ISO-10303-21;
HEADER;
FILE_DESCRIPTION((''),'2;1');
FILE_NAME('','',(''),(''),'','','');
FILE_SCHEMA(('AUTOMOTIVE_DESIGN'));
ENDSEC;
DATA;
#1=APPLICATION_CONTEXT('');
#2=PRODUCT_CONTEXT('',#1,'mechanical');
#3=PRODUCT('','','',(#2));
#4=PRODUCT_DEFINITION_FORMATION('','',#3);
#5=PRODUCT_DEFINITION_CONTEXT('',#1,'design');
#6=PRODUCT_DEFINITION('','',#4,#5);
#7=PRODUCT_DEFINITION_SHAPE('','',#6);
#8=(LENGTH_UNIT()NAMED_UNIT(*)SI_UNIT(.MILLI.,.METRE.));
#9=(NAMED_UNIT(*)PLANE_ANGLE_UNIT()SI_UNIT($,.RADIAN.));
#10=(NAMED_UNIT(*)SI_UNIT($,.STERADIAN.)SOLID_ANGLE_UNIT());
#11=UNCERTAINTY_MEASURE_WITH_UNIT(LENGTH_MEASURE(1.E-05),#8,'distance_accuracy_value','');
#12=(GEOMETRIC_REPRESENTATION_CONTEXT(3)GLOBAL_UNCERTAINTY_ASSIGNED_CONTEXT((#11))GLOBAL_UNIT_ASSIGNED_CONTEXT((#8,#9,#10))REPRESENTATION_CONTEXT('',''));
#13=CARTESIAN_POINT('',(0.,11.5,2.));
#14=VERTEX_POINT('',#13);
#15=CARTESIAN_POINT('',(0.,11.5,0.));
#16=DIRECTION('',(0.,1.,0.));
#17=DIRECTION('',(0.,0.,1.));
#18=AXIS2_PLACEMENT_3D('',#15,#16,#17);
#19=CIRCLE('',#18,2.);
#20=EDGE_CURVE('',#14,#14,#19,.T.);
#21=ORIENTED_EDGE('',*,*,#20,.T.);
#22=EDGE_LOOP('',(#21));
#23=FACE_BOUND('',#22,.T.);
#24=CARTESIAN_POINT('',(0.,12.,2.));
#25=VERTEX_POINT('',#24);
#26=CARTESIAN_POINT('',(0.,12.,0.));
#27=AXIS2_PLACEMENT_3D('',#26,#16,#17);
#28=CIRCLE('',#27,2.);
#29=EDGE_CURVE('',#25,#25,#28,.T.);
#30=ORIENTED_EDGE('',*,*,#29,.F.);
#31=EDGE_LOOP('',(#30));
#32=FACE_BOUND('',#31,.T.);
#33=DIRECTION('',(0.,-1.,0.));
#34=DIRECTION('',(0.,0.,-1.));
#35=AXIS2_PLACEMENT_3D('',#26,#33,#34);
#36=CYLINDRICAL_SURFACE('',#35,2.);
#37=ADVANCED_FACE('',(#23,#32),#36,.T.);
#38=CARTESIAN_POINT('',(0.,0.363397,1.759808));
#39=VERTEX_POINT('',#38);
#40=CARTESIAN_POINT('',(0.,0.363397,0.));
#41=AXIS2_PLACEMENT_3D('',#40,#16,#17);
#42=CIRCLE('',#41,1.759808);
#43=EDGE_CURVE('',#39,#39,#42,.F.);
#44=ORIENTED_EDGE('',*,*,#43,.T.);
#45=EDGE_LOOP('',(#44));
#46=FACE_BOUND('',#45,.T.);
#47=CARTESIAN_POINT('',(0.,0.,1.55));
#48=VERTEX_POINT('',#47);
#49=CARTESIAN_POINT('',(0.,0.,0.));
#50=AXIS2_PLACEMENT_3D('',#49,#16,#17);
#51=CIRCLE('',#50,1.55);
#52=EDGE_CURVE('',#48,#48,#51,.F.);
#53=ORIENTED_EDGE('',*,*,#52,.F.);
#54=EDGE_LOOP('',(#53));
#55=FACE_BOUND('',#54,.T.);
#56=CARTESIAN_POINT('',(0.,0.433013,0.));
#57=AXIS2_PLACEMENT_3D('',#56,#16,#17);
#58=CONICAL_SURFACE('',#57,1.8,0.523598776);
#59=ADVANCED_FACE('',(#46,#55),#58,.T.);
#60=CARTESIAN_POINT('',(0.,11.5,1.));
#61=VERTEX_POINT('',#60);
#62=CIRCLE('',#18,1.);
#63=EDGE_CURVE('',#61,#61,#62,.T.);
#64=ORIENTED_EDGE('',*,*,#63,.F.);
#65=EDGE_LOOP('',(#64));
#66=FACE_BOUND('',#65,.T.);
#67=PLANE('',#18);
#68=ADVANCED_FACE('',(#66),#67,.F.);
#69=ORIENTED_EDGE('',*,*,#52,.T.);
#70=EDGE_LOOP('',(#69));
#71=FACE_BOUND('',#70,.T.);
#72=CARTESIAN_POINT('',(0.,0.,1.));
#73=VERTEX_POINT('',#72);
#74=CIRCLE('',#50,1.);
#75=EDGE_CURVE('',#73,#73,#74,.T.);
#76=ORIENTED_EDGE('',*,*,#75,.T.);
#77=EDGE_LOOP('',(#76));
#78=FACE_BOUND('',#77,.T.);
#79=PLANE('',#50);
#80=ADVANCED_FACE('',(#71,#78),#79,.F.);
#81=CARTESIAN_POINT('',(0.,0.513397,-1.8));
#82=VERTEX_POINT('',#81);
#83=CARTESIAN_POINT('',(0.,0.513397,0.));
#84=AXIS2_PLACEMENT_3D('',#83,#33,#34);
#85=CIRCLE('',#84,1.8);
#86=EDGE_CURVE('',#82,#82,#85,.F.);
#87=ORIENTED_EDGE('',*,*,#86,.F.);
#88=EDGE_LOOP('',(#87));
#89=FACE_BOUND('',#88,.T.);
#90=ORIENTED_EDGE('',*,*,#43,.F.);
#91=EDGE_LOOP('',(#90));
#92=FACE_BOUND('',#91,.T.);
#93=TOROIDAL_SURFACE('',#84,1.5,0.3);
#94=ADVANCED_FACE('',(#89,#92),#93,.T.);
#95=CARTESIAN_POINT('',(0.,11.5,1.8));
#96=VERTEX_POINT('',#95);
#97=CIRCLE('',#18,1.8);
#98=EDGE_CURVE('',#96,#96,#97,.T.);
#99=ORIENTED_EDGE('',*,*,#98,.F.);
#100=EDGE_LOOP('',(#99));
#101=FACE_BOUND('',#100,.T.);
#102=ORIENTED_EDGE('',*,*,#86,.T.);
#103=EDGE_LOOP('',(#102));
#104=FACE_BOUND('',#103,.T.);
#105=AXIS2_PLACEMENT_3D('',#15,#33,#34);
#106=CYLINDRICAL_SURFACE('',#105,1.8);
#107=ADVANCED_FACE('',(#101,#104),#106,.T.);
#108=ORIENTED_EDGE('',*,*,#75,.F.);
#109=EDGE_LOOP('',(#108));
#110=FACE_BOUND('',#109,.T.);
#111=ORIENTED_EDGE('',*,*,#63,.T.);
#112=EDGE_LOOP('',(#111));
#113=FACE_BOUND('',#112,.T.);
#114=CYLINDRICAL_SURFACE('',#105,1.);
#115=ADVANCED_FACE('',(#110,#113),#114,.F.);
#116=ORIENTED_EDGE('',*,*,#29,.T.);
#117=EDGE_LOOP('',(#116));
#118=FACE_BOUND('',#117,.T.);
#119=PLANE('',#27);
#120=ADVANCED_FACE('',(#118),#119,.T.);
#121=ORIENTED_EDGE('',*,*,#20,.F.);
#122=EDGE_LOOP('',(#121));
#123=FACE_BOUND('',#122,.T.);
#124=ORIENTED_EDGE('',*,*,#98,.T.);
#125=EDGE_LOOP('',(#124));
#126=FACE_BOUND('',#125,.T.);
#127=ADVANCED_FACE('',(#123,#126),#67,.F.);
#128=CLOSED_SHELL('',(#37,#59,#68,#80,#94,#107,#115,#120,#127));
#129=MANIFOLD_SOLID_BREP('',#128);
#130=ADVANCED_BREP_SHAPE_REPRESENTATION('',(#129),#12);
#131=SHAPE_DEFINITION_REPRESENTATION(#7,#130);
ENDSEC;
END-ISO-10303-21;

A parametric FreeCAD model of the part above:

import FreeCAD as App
import Part
import Sketcher
from FreeCAD import Vector


def edges_at(feature, points):
    """Names of the edges that pass closest to the given points."""
    edges = feature.Shape.Edges
    near = lambda p: min(range(len(edges)), key=lambda i: edges[i].distToShape(Part.Vertex(*p))[0])
    return sorted({f"Edge{near(p) + 1}" for p in points})

doc = App.newDocument("Part")
body = doc.addObject("PartDesign::Body", "Body")

# Sketch on XZ plane
sketch1 = body.newObject("Sketcher::SketchObject", "Sketch")
sketch1.AttachmentSupport = (doc.getObject("XZ_Plane"), [""])
sketch1.MapMode = "FlatFace"
sketch1.addGeometry([
    Part.Circle(Vector(0, 0, 0), Vector(0, 0, 1), 1.8),
    Part.Circle(Vector(0, 0, 0), Vector(0, 0, 1), 1),
], False)
sketch1.addConstraint([
    Sketcher.Constraint("Coincident", 0, 3, -1, 1),
    Sketcher.Constraint("Coincident", 1, 3, -1, 1),
    Sketcher.Constraint("Diameter", 1, 2.0),
    Sketcher.Constraint("Diameter", 0, 3.6),
])
pad1 = body.newObject("PartDesign::Pad", "Pad")
pad1.Profile = sketch1
pad1.Length = 11.5
pad1.Reversed = True

# Sketch on XZ plane
sketch2 = body.newObject("Sketcher::SketchObject", "Sketch001")
sketch2.AttachmentSupport = (doc.getObject("XZ_Plane"), [""])
sketch2.MapMode = "FlatFace"
sketch2.AttachmentOffset = App.Placement(Vector(0, 0, -11.5), App.Rotation())
sketch2.addGeometry(Part.Circle(Vector(0, 0, 0), Vector(0, 0, 1), 2), False)
sketch2.addConstraint([
    Sketcher.Constraint("Coincident", 0, 3, -1, 1),
    Sketcher.Constraint("Diameter", 0, 4.0),
])
pad2 = body.newObject("PartDesign::Pad", "Pad001")
pad2.Profile = sketch2
pad2.Length = 0.5
pad2.Reversed = True
doc.recompute()

chamfer = body.newObject("PartDesign::Chamfer", "Chamfer")
chamfer.Base = (pad2, edges_at(pad2, [(0, 0, -1.8)]))
chamfer.ChamferType = "Two distances"
chamfer.Size = 0.25
chamfer.Size2 = 0.433013
chamfer.FlipDirection = True
doc.recompute()

fillet = body.newObject("PartDesign::Fillet", "Fillet")
fillet.Base = (chamfer, edges_at(chamfer, [(0, 0.433, -1.8)]))
fillet.Radius = 0.3

doc.recompute()
